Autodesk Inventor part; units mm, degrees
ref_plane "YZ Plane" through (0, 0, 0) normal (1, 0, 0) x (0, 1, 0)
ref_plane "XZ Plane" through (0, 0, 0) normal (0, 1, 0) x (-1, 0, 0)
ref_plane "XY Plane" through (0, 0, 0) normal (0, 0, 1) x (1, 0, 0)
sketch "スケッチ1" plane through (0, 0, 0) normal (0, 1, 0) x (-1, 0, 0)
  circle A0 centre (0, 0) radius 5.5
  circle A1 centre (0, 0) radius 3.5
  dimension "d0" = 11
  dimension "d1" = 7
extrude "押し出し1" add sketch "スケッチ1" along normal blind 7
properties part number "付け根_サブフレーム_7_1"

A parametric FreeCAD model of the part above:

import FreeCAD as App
import Part
import Sketcher
Q = App.Units.Quantity

doc = App.newDocument("Part")
body = doc.addObject("PartDesign::Body", "Body")

# Sketch on XZ plane
sketch1 = doc.addObject("Sketcher::SketchObject", "Sketch")
body.addObject(sketch1)
sketch1.AttachmentSupport = (doc.XZ_Plane, [""])
sketch1.MapMode = "FlatFace"
sketch1.addGeometry([
    Part.Circle(App.Vector(0, 0, 0), App.Vector(0, 0, 1), 5.5),
    Part.Circle(App.Vector(0, 0, 0), App.Vector(0, 0, 1), 3.5),
], False)
sketch1.addConstraint([
    Sketcher.Constraint("Coincident", 0, 3, -1, 1),
    Sketcher.Constraint("Coincident", 1, 3, -1, 1),
    Sketcher.Constraint("Diameter", 0, Q("11 mm")),
    Sketcher.Constraint("Diameter", 1, Q("7 mm")),
])
pad1 = doc.addObject("PartDesign::Pad", "Pad")
body.addObject(pad1)
pad1.Profile = sketch1
pad1.Length = 7
pad1.Reversed = True

doc.recompute()
